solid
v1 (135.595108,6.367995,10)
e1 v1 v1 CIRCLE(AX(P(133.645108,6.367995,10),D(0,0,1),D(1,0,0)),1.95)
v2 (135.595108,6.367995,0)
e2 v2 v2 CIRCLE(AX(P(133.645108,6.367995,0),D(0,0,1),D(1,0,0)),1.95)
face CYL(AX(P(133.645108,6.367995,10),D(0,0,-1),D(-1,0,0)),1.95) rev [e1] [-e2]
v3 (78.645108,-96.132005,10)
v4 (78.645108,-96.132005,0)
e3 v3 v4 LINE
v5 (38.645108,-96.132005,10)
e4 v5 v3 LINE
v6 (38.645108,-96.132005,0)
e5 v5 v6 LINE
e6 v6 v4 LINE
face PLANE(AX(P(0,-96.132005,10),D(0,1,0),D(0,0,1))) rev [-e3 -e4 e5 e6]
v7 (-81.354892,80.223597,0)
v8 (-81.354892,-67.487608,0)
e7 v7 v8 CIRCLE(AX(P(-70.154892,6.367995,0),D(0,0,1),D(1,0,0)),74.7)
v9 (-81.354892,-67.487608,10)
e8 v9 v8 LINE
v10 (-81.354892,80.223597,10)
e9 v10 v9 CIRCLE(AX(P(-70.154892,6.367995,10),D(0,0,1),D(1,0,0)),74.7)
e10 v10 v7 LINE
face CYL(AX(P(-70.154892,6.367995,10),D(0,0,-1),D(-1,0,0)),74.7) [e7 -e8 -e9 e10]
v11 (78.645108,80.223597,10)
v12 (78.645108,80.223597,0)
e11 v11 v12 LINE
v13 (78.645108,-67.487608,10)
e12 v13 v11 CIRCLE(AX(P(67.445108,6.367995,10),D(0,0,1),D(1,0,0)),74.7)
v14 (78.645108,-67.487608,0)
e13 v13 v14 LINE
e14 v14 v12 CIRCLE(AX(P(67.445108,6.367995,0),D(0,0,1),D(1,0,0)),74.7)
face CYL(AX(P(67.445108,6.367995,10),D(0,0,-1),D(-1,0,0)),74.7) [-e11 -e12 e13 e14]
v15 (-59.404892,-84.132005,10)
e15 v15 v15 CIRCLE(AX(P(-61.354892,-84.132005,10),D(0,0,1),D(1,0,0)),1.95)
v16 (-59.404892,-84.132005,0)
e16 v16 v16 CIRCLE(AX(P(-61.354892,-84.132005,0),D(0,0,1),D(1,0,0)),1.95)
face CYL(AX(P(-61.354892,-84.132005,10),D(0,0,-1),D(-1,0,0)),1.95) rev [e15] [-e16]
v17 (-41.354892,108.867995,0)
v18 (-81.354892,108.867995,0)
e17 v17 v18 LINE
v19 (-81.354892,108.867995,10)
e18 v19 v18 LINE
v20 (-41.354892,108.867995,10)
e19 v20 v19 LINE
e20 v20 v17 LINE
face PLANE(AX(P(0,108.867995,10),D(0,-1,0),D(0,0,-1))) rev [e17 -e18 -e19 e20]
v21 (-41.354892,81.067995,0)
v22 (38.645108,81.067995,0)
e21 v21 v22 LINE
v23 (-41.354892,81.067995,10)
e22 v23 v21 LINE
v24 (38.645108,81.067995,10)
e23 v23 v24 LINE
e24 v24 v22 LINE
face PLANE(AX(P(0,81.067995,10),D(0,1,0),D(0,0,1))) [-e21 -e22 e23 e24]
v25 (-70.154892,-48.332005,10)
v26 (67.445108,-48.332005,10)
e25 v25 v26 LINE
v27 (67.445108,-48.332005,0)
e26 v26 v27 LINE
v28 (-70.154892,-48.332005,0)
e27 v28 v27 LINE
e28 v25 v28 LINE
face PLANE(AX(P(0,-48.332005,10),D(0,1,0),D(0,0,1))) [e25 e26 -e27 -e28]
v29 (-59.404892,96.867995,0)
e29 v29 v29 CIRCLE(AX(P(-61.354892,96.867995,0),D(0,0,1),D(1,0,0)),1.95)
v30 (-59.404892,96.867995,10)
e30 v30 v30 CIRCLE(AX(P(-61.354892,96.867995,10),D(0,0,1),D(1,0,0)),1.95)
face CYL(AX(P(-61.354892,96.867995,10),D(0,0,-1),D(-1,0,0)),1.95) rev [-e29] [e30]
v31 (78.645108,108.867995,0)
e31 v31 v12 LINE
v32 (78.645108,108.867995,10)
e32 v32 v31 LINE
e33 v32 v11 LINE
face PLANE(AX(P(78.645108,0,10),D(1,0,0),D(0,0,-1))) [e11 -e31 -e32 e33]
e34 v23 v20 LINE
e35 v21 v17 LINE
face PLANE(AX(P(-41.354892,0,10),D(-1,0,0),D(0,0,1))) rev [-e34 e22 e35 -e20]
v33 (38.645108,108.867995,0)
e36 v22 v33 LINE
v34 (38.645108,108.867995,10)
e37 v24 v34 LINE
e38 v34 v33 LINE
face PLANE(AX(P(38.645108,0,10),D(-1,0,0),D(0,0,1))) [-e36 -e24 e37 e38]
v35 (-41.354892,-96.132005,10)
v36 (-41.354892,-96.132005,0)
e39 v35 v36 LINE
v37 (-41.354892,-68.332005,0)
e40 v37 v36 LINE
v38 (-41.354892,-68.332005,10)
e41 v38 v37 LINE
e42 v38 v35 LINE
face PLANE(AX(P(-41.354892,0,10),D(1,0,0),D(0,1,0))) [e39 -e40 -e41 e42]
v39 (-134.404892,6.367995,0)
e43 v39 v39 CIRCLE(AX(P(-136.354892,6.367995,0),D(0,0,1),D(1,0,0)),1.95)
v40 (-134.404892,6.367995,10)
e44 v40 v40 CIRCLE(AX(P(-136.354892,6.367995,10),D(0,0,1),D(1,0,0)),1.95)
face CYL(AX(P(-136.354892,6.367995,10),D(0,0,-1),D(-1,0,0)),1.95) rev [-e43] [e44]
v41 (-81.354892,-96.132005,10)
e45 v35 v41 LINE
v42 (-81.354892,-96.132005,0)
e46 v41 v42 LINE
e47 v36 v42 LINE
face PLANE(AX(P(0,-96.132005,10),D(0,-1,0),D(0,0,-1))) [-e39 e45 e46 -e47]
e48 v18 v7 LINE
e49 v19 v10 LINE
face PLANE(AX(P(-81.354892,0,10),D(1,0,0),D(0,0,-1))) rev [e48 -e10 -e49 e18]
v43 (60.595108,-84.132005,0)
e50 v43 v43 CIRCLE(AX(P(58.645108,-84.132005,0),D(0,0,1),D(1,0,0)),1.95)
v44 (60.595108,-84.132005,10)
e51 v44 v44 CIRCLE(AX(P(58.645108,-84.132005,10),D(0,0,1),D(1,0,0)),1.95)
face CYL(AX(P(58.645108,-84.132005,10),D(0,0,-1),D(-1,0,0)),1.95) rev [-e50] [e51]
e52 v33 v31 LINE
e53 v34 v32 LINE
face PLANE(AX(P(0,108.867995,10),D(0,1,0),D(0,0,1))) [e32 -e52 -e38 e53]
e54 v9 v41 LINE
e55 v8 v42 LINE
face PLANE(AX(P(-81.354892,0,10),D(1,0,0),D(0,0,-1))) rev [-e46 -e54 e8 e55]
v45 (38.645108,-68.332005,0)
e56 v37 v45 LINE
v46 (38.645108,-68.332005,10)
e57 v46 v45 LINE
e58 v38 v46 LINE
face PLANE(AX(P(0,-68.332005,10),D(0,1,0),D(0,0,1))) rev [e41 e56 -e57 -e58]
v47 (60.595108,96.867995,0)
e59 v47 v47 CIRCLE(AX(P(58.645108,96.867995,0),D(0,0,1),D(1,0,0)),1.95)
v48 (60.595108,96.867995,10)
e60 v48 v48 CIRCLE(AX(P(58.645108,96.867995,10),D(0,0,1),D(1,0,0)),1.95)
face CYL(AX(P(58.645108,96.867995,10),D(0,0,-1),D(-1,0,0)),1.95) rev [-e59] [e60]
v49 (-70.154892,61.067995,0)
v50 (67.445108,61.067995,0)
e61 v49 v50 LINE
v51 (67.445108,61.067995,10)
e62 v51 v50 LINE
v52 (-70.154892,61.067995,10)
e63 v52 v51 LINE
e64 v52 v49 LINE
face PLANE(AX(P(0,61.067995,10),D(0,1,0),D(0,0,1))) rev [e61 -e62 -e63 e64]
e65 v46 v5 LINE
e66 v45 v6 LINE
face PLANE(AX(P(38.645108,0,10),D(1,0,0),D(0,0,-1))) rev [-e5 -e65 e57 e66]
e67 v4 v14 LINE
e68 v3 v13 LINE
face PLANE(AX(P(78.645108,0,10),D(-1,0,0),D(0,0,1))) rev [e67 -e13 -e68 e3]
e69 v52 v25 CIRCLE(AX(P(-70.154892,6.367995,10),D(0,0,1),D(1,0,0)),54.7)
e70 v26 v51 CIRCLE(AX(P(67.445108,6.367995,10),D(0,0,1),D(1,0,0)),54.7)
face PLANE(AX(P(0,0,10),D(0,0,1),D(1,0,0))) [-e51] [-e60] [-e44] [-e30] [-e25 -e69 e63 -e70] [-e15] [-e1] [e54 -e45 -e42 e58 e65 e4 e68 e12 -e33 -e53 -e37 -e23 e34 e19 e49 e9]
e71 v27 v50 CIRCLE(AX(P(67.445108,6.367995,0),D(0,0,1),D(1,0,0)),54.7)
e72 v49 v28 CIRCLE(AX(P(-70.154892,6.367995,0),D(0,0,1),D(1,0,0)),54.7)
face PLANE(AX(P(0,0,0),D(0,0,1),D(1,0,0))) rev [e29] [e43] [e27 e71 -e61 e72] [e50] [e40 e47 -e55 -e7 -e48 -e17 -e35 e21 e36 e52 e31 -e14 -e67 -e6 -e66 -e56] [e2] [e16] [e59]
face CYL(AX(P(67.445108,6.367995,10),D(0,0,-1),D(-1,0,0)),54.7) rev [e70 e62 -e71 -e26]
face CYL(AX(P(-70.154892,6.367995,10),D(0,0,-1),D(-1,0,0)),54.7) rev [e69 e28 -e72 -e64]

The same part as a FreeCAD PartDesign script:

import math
import FreeCAD as App
import Part
import Sketcher

doc = App.newDocument("Part")
body = doc.addObject("PartDesign::Body", "Body")

sketch1 = body.newObject("Sketcher::SketchObject", "Sketch")
sketch1.AttachmentSupport = (doc.getObject("XY_Plane"), [""])
sketch1.MapMode = "FlatFace"
sketch1.addGeometry(Part.ArcOfCircle(Part.Circle(App.Vector(-70.2, 6.4, 0), App.Vector(0, 0, 1), 74.7), math.radians(99), math.radians(261)), False)
sketch1.addGeometry(Part.LineSegment(App.Vector(-81.4, -67.5, 0), App.Vector(-81.4, -96.1, 0)), False)
sketch1.addGeometry(Part.LineSegment(App.Vector(-81.4, -96.1, 0), App.Vector(-41.4, -96.1, 0)), False)
sketch1.addGeometry(Part.LineSegment(App.Vector(-41.4, -96.1, 0), App.Vector(-41.4, -68.3, 0)), False)
sketch1.addGeometry(Part.LineSegment(App.Vector(-41.4, -68.3, 0), App.Vector(38.6, -68.3, 0)), False)
sketch1.addGeometry(Part.LineSegment(App.Vector(38.6, -68.3, 0), App.Vector(38.6, -96.1, 0)), False)
sketch1.addGeometry(Part.LineSegment(App.Vector(38.6, -96.1, 0), App.Vector(78.6, -96.1, 0)), False)
sketch1.addGeometry(Part.LineSegment(App.Vector(78.6, -96.1, 0), App.Vector(78.6, -67.5, 0)), False)
sketch1.addGeometry(Part.ArcOfCircle(Part.Circle(App.Vector(67.4, 6.4, 0), App.Vector(0, 0, 1), 74.7), math.radians(-81), math.radians(81)), False)
sketch1.addGeometry(Part.LineSegment(App.Vector(78.6, 80.2, 0), App.Vector(78.6, 108.9, 0)), False)
sketch1.addGeometry(Part.LineSegment(App.Vector(78.6, 108.9, 0), App.Vector(38.6, 108.9, 0)), False)
sketch1.addGeometry(Part.LineSegment(App.Vector(38.6, 108.9, 0), App.Vector(38.6, 81.1, 0)), False)
sketch1.addGeometry(Part.LineSegment(App.Vector(38.6, 81.1, 0), App.Vector(-41.4, 81.1, 0)), False)
sketch1.addGeometry(Part.LineSegment(App.Vector(-41.4, 81.1, 0), App.Vector(-41.4, 108.9, 0)), False)
sketch1.addGeometry(Part.LineSegment(App.Vector(-41.4, 108.9, 0), App.Vector(-81.4, 108.9, 0)), False)
sketch1.addGeometry(Part.LineSegment(App.Vector(-81.4, 108.9, 0), App.Vector(-81.4, 80.2, 0)), False)
sketch1.addGeometry(Part.Circle(App.Vector(-61.4, -84.1, 0), App.Vector(0, 0, 1), 1.9), False)
sketch1.addGeometry(Part.Circle(App.Vector(58.6, -84.1, 0), App.Vector(0, 0, 1), 1.9), False)
sketch1.addGeometry(Part.ArcOfCircle(Part.Circle(App.Vector(-70.2, 6.4, 0), App.Vector(0, 0, 1), 54.7), math.radians(90), math.radians(270)), False)
sketch1.addGeometry(Part.LineSegment(App.Vector(-70.2, 61.1, 0), App.Vector(67.4, 61.1, 0)), False)
sketch1.addGeometry(Part.ArcOfCircle(Part.Circle(App.Vector(67.4, 6.4, 0), App.Vector(0, 0, 1), 54.7), math.radians(-90), math.radians(90)), False)
sketch1.addGeometry(Part.LineSegment(App.Vector(67.4, -48.3, 0), App.Vector(-70.2, -48.3, 0)), False)
sketch1.addGeometry(Part.Circle(App.Vector(-136.4, 6.4, 0), App.Vector(0, 0, 1), 1.9), False)
sketch1.addGeometry(Part.Circle(App.Vector(-61.4, 96.9, 0), App.Vector(0, 0, 1), 1.9), False)
sketch1.addGeometry(Part.Circle(App.Vector(133.6, 6.4, 0), App.Vector(0, 0, 1), 1.9), False)
sketch1.addGeometry(Part.Circle(App.Vector(58.6, 96.9, 0), App.Vector(0, 0, 1), 1.9), False)
sketch1.addConstraint(Sketcher.Constraint("Coincident", 0, 2, 1, 1))
sketch1.addConstraint(Sketcher.Constraint("Coincident", 1, 2, 2, 1))
sketch1.addConstraint(Sketcher.Constraint("Coincident", 2, 2, 3, 1))
sketch1.addConstraint(Sketcher.Constraint("Coincident", 3, 2, 4, 1))
sketch1.addConstraint(Sketcher.Constraint("Coincident", 4, 2, 5, 1))
sketch1.addConstraint(Sketcher.Constraint("Coincident", 5, 2, 6, 1))
sketch1.addConstraint(Sketcher.Constraint("Coincident", 6, 2, 7, 1))
sketch1.addConstraint(Sketcher.Constraint("Coincident", 7, 2, 8, 1))
sketch1.addConstraint(Sketcher.Constraint("Coincident", 8, 2, 9, 1))
sketch1.addConstraint(Sketcher.Constraint("Coincident", 9, 2, 10, 1))
sketch1.addConstraint(Sketcher.Constraint("Coincident", 10, 2, 11, 1))
sketch1.addConstraint(Sketcher.Constraint("Coincident", 11, 2, 12, 1))
sketch1.addConstraint(Sketcher.Constraint("Coincident", 12, 2, 13, 1))
sketch1.addConstraint(Sketcher.Constraint("Coincident", 13, 2, 14, 1))
sketch1.addConstraint(Sketcher.Constraint("Coincident", 14, 2, 15, 1))
sketch1.addConstraint(Sketcher.Constraint("Coincident", 15, 2, 0, 1))
sketch1.addConstraint(Sketcher.Constraint("Tangent", 18, 1, 19, 1))
sketch1.addConstraint(Sketcher.Constraint("Tangent", 19, 2, 20, 2))
sketch1.addConstraint(Sketcher.Constraint("Tangent", 20, 1, 21, 1))
sketch1.addConstraint(Sketcher.Constraint("Tangent", 21, 2, 18, 2))
sketch1.addConstraint(Sketcher.Constraint("Vertical", 1))
sketch1.addConstraint(Sketcher.Constraint("Horizontal", 2))
sketch1.addConstraint(Sketcher.Constraint("Vertical", 3))
sketch1.addConstraint(Sketcher.Constraint("Horizontal", 4))
sketch1.addConstraint(Sketcher.Constraint("Vertical", 5))
sketch1.addConstraint(Sketcher.Constraint("Horizontal", 6))
sketch1.addConstraint(Sketcher.Constraint("Vertical", 7))
sketch1.addConstraint(Sketcher.Constraint("Vertical", 9))
sketch1.addConstraint(Sketcher.Constraint("Horizontal", 10))
sketch1.addConstraint(Sketcher.Constraint("Vertical", 11))
sketch1.addConstraint(Sketcher.Constraint("Horizontal", 12))
sketch1.addConstraint(Sketcher.Constraint("Vertical", 13))
sketch1.addConstraint(Sketcher.Constraint("Horizontal", 14))
sketch1.addConstraint(Sketcher.Constraint("Vertical", 15))
sketch1.addConstraint(Sketcher.Constraint("Horizontal", 19))
sketch1.addConstraint(Sketcher.Constraint("Horizontal", 21))
sketch1.addConstraint(Sketcher.Constraint("Coincident", 18, 3, 0, 3))
sketch1.addConstraint(Sketcher.Constraint("Coincident", 20, 3, 8, 3))
sketch1.addConstraint(Sketcher.Constraint("Equal", 0, 8))
sketch1.addConstraint(Sketcher.Constraint("Equal", 16, 17))
sketch1.addConstraint(Sketcher.Constraint("Equal", 17, 22))
sketch1.addConstraint(Sketcher.Constraint("Equal", 22, 23))
sketch1.addConstraint(Sketcher.Constraint("Equal", 23, 24))
sketch1.addConstraint(Sketcher.Constraint("Equal", 24, 25))
sketch1.addConstraint(Sketcher.Constraint("Horizontal", 16, 3, 17, 3))
sketch1.addConstraint(Sketcher.Constraint("Horizontal", 20, 3, 22, 3))
sketch1.addConstraint(Sketcher.Constraint("Horizontal", 22, 3, 24, 3))
sketch1.addConstraint(Sketcher.Constraint("Horizontal", 23, 3, 25, 3))
sketch1.addConstraint(Sketcher.Constraint("Horizontal", 2, 2, 5, 2))
sketch1.addConstraint(Sketcher.Constraint("Horizontal", 0, 2, 7, 2))
sketch1.addConstraint(Sketcher.Constraint("Horizontal", 10, 2, 13, 2))
sketch1.addConstraint(Sketcher.Constraint("Horizontal", 8, 2, 15, 2))
sketch1.addConstraint(Sketcher.Constraint("Vertical", 16, 3, 23, 3))
sketch1.addConstraint(Sketcher.Constraint("Vertical", 17, 3, 25, 3))
sketch1.addConstraint(Sketcher.Constraint("Vertical", 7, 2, 8, 2))
sketch1.addConstraint(Sketcher.Constraint("Vertical", 5, 2, 10, 2))
sketch1.addConstraint(Sketcher.Constraint("Vertical", 3, 2, 12, 2))
sketch1.addConstraint(Sketcher.Constraint("Equal", 2, 6))
sketch1.addConstraint(Sketcher.Constraint("Equal", 7, 9))
sketch1.addConstraint(Sketcher.Constraint("Equal", 5, 11))
sketch1.addConstraint(Sketcher.Constraint("Diameter", 16, 3.9))
sketch1.addConstraint(Sketcher.Constraint("Radius", 0, 74.7))
sketch1.addConstraint(Sketcher.Constraint("Radius", 18, 54.7))
sketch1.addConstraint(Sketcher.Constraint("DistanceX", 2, 1, 2, 2, 40.0))
sketch1.addConstraint(Sketcher.Constraint("DistanceX", 4, 1, 4, 2, 80.0))
sketch1.addConstraint(Sketcher.Constraint("DistanceX", 19, 1, 19, 2, 137.6))
sketch1.addConstraint(Sketcher.Constraint("DistanceY", 3, 1, 3, 2, 27.8))
sketch1.addConstraint(Sketcher.Constraint("DistanceX", 16, 3, 17, 3, 120.0))
sketch1.addConstraint(Sketcher.Constraint("DistanceX", 22, 3, 16, 3, 75.0))
sketch1.addConstraint(Sketcher.Constraint("DistanceX", 17, 3, 24, 3, 75.0))
sketch1.addConstraint(Sketcher.Constraint("DistanceX", 0, 2, 16, 3, 20.0))
sketch1.addConstraint(Sketcher.Constraint("DistanceY", 1, 2, 16, 3, 12.0))
sketch1.addConstraint(Sketcher.Constraint("DistanceY", 25, 3, 9, 2, 12.0))
sketch1.addConstraint(Sketcher.Constraint("DistanceY", 18, 1, 12, 2, 20.0))
sketch1.addConstraint(Sketcher.Constraint("DistanceX", 0, 3, -1, 1, 70.154892))
sketch1.addConstraint(Sketcher.Constraint("DistanceY", -1, 1, 0, 3, 6.367995))
pad1 = body.newObject("PartDesign::Pad", "Pad")
pad1.Profile = sketch1
pad1.Length = 10

doc.recompute()
